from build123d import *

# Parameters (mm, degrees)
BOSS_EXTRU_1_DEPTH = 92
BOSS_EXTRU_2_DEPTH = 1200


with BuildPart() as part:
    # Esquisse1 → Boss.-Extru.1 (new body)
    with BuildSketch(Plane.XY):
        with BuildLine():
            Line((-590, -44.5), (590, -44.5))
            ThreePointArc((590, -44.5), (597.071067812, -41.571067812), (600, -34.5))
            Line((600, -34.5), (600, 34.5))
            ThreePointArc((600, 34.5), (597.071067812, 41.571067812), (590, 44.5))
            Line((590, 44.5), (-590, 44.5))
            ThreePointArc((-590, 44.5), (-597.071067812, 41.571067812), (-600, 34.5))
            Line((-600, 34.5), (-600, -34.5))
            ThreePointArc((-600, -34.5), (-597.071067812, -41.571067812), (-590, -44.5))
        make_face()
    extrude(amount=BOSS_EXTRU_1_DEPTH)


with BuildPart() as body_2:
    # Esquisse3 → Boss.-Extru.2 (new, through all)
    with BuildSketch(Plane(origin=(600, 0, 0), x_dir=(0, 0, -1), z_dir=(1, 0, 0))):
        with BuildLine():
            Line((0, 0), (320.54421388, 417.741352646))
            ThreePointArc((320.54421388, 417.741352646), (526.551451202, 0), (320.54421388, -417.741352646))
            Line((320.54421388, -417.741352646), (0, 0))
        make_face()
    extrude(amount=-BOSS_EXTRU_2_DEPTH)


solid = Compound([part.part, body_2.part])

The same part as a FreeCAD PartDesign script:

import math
import FreeCAD as App
import Part
import Sketcher

V = App.Vector
Q = App.Units.Quantity

doc = App.newDocument("Part")
body = doc.addObject("PartDesign::Body", "Body")

# Sketch on XY plane
sketch1 = doc.addObject("Sketcher::SketchObject", "Sketch")
body.addObject(sketch1)
sketch1.AttachmentSupport = (doc.XY_Plane, [""])
sketch1.MapMode = "FlatFace"
sketch1.addGeometry(Part.LineSegment(V(-590, -44, 0), V(590, -44, 0)), False)
sketch1.addGeometry(Part.ArcOfCircle(Part.Circle(V(590, -34, 0), V(0, 0, 1), 10), math.radians(-90), math.radians(0)), False)
sketch1.addGeometry(Part.LineSegment(V(600, -34, 0), V(600, 34, 0)), False)
sketch1.addGeometry(Part.ArcOfCircle(Part.Circle(V(590, 34, 0), V(0, 0, 1), 10), math.radians(0), math.radians(90)), False)
sketch1.addGeometry(Part.LineSegment(V(590, 44, 0), V(-590, 44, 0)), False)
sketch1.addGeometry(Part.ArcOfCircle(Part.Circle(V(-590, 34, 0), V(0, 0, 1), 10), math.radians(90), math.radians(180)), False)
sketch1.addGeometry(Part.LineSegment(V(-600, 34, 0), V(-600, -34, 0)), False)
sketch1.addGeometry(Part.ArcOfCircle(Part.Circle(V(-590, -34, 0), V(0, 0, 1), 10), math.radians(180), math.radians(270)), False)
sketch1.addConstraint(Sketcher.Constraint("Tangent", 0, 2, 1, 1))
sketch1.addConstraint(Sketcher.Constraint("Tangent", 1, 2, 2, 1))
sketch1.addConstraint(Sketcher.Constraint("Tangent", 2, 2, 3, 1))
sketch1.addConstraint(Sketcher.Constraint("Tangent", 3, 2, 4, 1))
sketch1.addConstraint(Sketcher.Constraint("Tangent", 4, 2, 5, 1))
sketch1.addConstraint(Sketcher.Constraint("Tangent", 5, 2, 6, 1))
sketch1.addConstraint(Sketcher.Constraint("Tangent", 6, 2, 7, 1))
sketch1.addConstraint(Sketcher.Constraint("Tangent", 7, 2, 0, 1))
sketch1.addConstraint(Sketcher.Constraint("Horizontal", 0))
sketch1.addConstraint(Sketcher.Constraint("Vertical", 2))
sketch1.addConstraint(Sketcher.Constraint("Horizontal", 4))
sketch1.addConstraint(Sketcher.Constraint("Vertical", 6))
sketch1.addConstraint(Sketcher.Constraint("Equal", 1, 3))
sketch1.addConstraint(Sketcher.Constraint("Equal", 3, 5))
sketch1.addConstraint(Sketcher.Constraint("Equal", 5, 7))
sketch1.addConstraint(Sketcher.Constraint("Symmetric", 1, 3, 5, 3, -1, 1))
sketch1.addConstraint(Sketcher.Constraint("Radius", 1, 10.0))
sketch1.addConstraint(Sketcher.Constraint("DistanceX", 0, 1, 0, 2, 1180.0))
sketch1.addConstraint(Sketcher.Constraint("DistanceY", 2, 1, 2, 2, 69.0))
pad1 = doc.addObject("PartDesign::Pad", "Pad")
body.addObject(pad1)
pad1.Profile = sketch1
pad1.Length = 92
body2 = doc.addObject("PartDesign::Body", "Body001")

# Sketch on YZ plane
sketch2 = doc.addObject("Sketcher::SketchObject", "Sketch001")
body2.addObject(sketch2)
sketch2.AttachmentSupport = (doc.getObject("YZ_Plane001"), [""])
sketch2.MapMode = "FlatFace"
sketch2.AttachmentOffset = App.Placement(V(0, 0, 600), App.Rotation())
sketch2.addGeometry(Part.LineSegment(V(418, -321, 0), V(0, 0, 0)), False)
sketch2.addGeometry(Part.LineSegment(V(0, 0, 0), V(-418, -321, 0)), False)
sketch2.addGeometry(Part.ArcOfCircle(Part.Circle(V(0, 0, 0), V(0, 0, 1), 527), math.radians(-143), math.radians(-37)), False)
sketch2.addConstraint(Sketcher.Constraint("Coincident", 0, 2, 1, 1))
sketch2.addConstraint(Sketcher.Constraint("Coincident", 1, 2, 2, 1))
sketch2.addConstraint(Sketcher.Constraint("Coincident", 2, 2, 0, 1))
sketch2.addConstraint(Sketcher.Constraint("Coincident", 2, 3, -1, 1))
sketch2.addConstraint(Sketcher.Constraint("Coincident", 0, 2, -1, 1))
sketch2.addConstraint(Sketcher.Constraint("Horizontal", 1, 2, 2, 2))
sketch2.addConstraint(Sketcher.Constraint("Angle", 0, Q("142.5 deg")))
sketch2.addConstraint(Sketcher.Constraint("Radius", 2, 526.551451))
pad2 = doc.addObject("PartDesign::Pad", "Pad001")
body2.addObject(pad2)
pad2.Profile = sketch2
pad2.Length = 1200
pad2.Reversed = True

doc.recompute()
